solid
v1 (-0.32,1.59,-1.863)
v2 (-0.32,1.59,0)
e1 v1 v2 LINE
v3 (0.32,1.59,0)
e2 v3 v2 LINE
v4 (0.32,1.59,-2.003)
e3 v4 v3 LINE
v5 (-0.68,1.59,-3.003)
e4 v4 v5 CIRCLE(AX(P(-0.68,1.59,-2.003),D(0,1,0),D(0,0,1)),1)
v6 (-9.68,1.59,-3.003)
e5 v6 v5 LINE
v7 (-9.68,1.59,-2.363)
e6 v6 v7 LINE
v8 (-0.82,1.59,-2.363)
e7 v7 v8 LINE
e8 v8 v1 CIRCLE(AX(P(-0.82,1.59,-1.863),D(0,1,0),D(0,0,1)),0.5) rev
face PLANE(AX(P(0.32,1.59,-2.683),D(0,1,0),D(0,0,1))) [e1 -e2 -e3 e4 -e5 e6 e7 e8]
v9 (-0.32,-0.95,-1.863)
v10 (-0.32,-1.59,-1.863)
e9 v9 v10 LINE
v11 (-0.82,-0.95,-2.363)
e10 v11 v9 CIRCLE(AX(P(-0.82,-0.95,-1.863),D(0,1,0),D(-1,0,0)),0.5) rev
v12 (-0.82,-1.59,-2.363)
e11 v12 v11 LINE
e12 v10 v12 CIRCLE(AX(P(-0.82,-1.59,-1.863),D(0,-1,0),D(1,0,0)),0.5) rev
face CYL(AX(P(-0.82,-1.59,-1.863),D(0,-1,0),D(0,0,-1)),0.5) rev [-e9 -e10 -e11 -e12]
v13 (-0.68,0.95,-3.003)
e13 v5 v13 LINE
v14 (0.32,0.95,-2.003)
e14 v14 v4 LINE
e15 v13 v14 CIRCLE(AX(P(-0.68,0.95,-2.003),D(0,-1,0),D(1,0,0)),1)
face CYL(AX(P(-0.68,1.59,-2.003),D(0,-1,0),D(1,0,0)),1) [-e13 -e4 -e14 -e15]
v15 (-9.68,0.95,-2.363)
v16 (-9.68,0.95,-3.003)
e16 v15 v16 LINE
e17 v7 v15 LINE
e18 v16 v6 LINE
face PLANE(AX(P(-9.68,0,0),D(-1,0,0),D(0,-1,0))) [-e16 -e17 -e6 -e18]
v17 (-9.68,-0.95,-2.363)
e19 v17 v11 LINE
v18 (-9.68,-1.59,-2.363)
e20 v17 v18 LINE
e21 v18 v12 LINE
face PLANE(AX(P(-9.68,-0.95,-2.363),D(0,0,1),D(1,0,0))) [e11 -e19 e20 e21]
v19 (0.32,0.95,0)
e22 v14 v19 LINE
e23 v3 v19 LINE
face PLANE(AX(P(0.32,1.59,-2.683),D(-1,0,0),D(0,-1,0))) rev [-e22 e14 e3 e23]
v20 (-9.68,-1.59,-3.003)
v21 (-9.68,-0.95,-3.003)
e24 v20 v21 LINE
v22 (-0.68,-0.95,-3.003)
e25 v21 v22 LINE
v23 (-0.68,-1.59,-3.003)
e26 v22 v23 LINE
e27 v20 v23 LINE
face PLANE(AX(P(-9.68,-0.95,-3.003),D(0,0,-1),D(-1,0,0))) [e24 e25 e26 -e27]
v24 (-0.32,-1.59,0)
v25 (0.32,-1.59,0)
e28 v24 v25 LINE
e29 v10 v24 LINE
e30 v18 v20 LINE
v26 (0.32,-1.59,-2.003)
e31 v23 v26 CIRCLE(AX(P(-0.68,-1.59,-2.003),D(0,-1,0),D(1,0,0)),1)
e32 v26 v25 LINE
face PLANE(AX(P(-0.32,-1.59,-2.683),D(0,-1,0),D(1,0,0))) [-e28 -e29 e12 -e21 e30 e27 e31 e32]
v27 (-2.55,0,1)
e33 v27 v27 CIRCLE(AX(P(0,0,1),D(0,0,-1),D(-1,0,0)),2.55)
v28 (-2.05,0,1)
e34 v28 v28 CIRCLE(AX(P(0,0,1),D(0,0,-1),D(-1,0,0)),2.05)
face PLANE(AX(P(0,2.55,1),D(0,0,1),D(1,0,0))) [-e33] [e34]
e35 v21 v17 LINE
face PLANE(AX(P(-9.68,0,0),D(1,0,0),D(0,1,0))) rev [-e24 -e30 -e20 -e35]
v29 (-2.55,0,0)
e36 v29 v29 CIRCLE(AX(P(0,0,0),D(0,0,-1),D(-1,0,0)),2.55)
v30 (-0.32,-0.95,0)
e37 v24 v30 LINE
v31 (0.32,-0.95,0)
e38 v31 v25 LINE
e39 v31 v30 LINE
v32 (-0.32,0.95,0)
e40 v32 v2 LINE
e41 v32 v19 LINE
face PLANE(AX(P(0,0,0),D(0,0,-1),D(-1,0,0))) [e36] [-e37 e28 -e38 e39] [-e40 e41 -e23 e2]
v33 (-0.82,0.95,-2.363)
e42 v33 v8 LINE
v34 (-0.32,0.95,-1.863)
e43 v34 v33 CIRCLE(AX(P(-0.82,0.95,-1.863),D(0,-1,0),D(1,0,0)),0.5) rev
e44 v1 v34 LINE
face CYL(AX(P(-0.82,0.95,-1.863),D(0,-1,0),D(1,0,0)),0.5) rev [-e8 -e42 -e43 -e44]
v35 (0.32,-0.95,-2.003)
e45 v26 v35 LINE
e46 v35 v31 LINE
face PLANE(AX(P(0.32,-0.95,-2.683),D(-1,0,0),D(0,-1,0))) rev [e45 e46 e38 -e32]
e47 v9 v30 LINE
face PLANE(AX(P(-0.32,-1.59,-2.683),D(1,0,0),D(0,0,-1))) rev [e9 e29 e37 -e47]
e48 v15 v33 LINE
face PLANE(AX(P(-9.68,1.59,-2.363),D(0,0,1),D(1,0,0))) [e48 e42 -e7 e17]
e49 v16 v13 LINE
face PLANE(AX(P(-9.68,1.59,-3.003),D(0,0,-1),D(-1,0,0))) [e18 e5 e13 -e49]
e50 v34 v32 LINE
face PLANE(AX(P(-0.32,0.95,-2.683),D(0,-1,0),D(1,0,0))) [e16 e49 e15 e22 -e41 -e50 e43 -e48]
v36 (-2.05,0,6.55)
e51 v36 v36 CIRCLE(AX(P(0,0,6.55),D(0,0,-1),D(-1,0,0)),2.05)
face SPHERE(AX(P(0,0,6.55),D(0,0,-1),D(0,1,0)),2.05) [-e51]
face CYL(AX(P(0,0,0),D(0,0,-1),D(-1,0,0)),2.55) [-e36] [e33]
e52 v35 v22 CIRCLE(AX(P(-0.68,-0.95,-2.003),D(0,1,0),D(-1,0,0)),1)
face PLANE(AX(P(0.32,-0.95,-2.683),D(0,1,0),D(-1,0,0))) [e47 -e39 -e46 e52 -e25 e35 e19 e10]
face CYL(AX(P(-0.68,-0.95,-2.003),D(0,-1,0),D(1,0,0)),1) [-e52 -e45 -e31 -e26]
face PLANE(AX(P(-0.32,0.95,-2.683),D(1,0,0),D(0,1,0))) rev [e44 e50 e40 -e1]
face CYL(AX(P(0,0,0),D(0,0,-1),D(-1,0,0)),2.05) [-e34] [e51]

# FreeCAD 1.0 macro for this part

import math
import FreeCAD as App
import Part
import Sketcher
from FreeCAD import Vector
Q = App.Units.Quantity


def edges_at(feature, points):
    """Names of the edges that pass closest to the given points."""
    edges = feature.Shape.Edges
    near = lambda p: min(range(len(edges)), key=lambda i: edges[i].distToShape(Part.Vertex(*p))[0])
    return sorted({f"Edge{near(p) + 1}" for p in points})


def add_polygon(sketch, points):
    """Adds a closed chain of lines whose ends are joined by coincident constraints."""
    first, n = sketch.GeometryCount, len(points)
    for a, b in zip(points, points[1:] + points[:1]):
        sketch.addGeometry(Part.LineSegment(App.Vector(*a, 0), App.Vector(*b, 0)), False)
    for i in range(n):
        sketch.addConstraint(Sketcher.Constraint("Coincident", first + i, 2, first + (i + 1) % n, 1))

doc = App.newDocument("Part")
params = doc.addObject("Spreadsheet::Sheet", "Params")
for row, (alias, value) in enumerate([
    ("sketch1_height", "1 mm"),
    ("sketch1_radius", "2.05 mm"),
    ("sketch1_width", "0.5 mm"),
    ("sketch1_height2", "8.6 mm"),
    ("revolution_angle", "360 deg"),
    ("sketch2_width", "0.64 mm"),
    ("pad1_length", "2.683 mm"),
    ("sketch3_width", "0.64 mm"),
    ("pad2_length", "10 mm"),
    ("fillet_radius", "1 mm"),
    ("fillet2_radius", "0.5 mm"),
], start=1):
    params.set(f"A{row}", alias)
    params.set(f"B{row}", "=" + value)
    params.setAlias(f"B{row}", alias)

body = doc.addObject("PartDesign::Body", "Body")

sketch1 = body.newObject("Sketcher::SketchObject", "Sketch")
sketch1.AttachmentSupport = (doc.getObject("YZ_Plane"), [""])
sketch1.MapMode = "FlatFace"
sketch1.addGeometry([
    Part.LineSegment(Vector(0, 0, 0), Vector(2.55, 0, 0)),
    Part.LineSegment(Vector(2.55, 0, 0), Vector(2.55, 1, 0)),
    Part.LineSegment(Vector(2.55, 1, 0), Vector(2.05, 1, 0)),
    Part.LineSegment(Vector(2.05, 1, 0), Vector(2.05, 6.55, 0)),
    Part.ArcOfCircle(Part.Circle(Vector(0, 6.55, 0), Vector(0, 0, 1), 2.05), math.radians(0), math.radians(90)),
    Part.LineSegment(Vector(0, 8.6, 0), Vector(0, 0, 0)),
], False)
sketch1.addConstraint([
    Sketcher.Constraint("Coincident", 0, 2, 1, 1),
    Sketcher.Constraint("Coincident", 1, 2, 2, 1),
    Sketcher.Constraint("Coincident", 2, 2, 3, 1),
    Sketcher.Constraint("Tangent", 3, 2, 4, 1),
    Sketcher.Constraint("Coincident", 4, 2, 5, 1),
    Sketcher.Constraint("Coincident", 5, 2, 0, 1),
    Sketcher.Constraint("Horizontal", 0),
    Sketcher.Constraint("Vertical", 1),
    Sketcher.Constraint("Horizontal", 2),
    Sketcher.Constraint("Vertical", 3),
    Sketcher.Constraint("Vertical", 5),
    Sketcher.Constraint("Coincident", 5, 2, -1, 1),
    Sketcher.Constraint("PointOnObject", 4, 3, -2),
    Sketcher.Constraint("DistanceY", 1, 1, 1, 2, Q("1 mm")),
    Sketcher.Constraint("Radius", 4, Q("2.05 mm")),
    Sketcher.Constraint("DistanceX", 2, 2, 2, 1, Q("0.5 mm")),
    Sketcher.Constraint("DistanceY", 5, 2, 5, 1, Q("8.6 mm")),
])
sketch1.setExpression("Constraints[13]", "Params.sketch1_height")
sketch1.setExpression("Constraints[14]", "Params.sketch1_radius")
sketch1.setExpression("Constraints[15]", "Params.sketch1_width")
sketch1.setExpression("Constraints[16]", "Params.sketch1_height2")
revolution = body.newObject("PartDesign::Revolution", "Revolution")
revolution.Profile = sketch1
revolution.ReferenceAxis = (sketch1, ["V_Axis"])
revolution.setExpression("Angle", "Params.revolution_angle")

sketch2 = body.newObject("Sketcher::SketchObject", "Sketch001")
sketch2.AttachmentSupport = (doc.getObject("XY_Plane"), [""])
sketch2.MapMode = "FlatFace"
add_polygon(sketch2, [(0.32, 1.59), (0.32, 0.95), (-0.32, 0.95), (-0.32, 1.59)])
add_polygon(sketch2, [(0.32, -0.95), (0.32, -1.59), (-0.32, -1.59), (-0.32, -0.95)])
sketch2.addConstraint([
    Sketcher.Constraint("Vertical", 0),
    Sketcher.Constraint("Horizontal", 1),
    Sketcher.Constraint("Vertical", 2),
    Sketcher.Constraint("Horizontal", 3),
    Sketcher.Constraint("Vertical", 4),
    Sketcher.Constraint("Horizontal", 5),
    Sketcher.Constraint("Vertical", 6),
    Sketcher.Constraint("Horizontal", 7),
    Sketcher.Constraint("Symmetric", 2, 2, 4, 2, -1, 1),
    Sketcher.Constraint("Symmetric", 0, 2, 6, 2, -1, 1),
    Sketcher.Constraint("Vertical", 3, 2, 4, 2),
    Sketcher.Constraint("Equal", 7, 0),
    Sketcher.Constraint("DistanceX", 1, 2, 1, 1, Q("0.64 mm")),
    Sketcher.Constraint("DistanceY", 6, 2, 1, 2, Q("1.9 mm")),
])
sketch2.setExpression("Constraints[20]", "Params.sketch2_width")
pad1 = body.newObject("PartDesign::Pad", "Pad")
pad1.Profile = sketch2
pad1.setExpression("Length", "Params.pad1_length")
pad1.Reversed = True

sketch3 = body.newObject("Sketcher::SketchObject", "Sketch002")
sketch3.AttachmentSupport = (doc.getObject("YZ_Plane"), [""])
sketch3.MapMode = "FlatFace"
sketch3.AttachmentOffset = App.Placement(Vector(0, 0, 0.32), App.Rotation())
add_polygon(sketch3, [(-0.95, -2.363), (-1.59, -2.363), (-1.59, -3.003), (-0.95, -3.003)])
add_polygon(sketch3, [(1.59, -2.363), (0.95, -2.363), (0.95, -3.003), (1.59, -3.003)])
sketch3.addConstraint([
    Sketcher.Constraint("Horizontal", 0),
    Sketcher.Constraint("Vertical", 1),
    Sketcher.Constraint("Horizontal", 2),
    Sketcher.Constraint("Vertical", 3),
    Sketcher.Constraint("Horizontal", 4),
    Sketcher.Constraint("Vertical", 5),
    Sketcher.Constraint("Horizontal", 6),
    Sketcher.Constraint("Vertical", 7),
    Sketcher.Constraint("Symmetric", 3, 2, 4, 2, -2),
    Sketcher.Constraint("Symmetric", 1, 2, 6, 2, -2),
    Sketcher.Constraint("Equal", 6, 1),
    Sketcher.Constraint("DistanceX", 0, 2, 0, 1, Q("0.64 mm")),
    Sketcher.Constraint("DistanceX", 3, 2, 4, 2, Q("1.9 mm")),
    Sketcher.Constraint("DistanceY", 0, 2, -1, 1, Q("2.363 mm")),
])
sketch3.setExpression("Constraints[19]", "Params.sketch3_width")
pad2 = body.newObject("PartDesign::Pad", "Pad001")
pad2.Profile = sketch3
pad2.setExpression("Length", "Params.pad2_length")
pad2.Reversed = True
doc.recompute()

fillet = body.newObject("PartDesign::Fillet", "Fillet")
fillet.Base = (pad2, edges_at(pad2, [(0.32, -1.27, -3.003), (0.32, 1.27, -3.003)]))
fillet.setExpression("Radius", "Params.fillet_radius")
doc.recompute()

fillet2 = body.newObject("PartDesign::Fillet", "Fillet001")
fillet2.Base = (fillet, edges_at(fillet, [(-0.32, 1.27, -2.363), (-0.32, -1.27, -2.363)]))
fillet2.setExpression("Radius", "Params.fillet2_radius")

doc.recompute()
